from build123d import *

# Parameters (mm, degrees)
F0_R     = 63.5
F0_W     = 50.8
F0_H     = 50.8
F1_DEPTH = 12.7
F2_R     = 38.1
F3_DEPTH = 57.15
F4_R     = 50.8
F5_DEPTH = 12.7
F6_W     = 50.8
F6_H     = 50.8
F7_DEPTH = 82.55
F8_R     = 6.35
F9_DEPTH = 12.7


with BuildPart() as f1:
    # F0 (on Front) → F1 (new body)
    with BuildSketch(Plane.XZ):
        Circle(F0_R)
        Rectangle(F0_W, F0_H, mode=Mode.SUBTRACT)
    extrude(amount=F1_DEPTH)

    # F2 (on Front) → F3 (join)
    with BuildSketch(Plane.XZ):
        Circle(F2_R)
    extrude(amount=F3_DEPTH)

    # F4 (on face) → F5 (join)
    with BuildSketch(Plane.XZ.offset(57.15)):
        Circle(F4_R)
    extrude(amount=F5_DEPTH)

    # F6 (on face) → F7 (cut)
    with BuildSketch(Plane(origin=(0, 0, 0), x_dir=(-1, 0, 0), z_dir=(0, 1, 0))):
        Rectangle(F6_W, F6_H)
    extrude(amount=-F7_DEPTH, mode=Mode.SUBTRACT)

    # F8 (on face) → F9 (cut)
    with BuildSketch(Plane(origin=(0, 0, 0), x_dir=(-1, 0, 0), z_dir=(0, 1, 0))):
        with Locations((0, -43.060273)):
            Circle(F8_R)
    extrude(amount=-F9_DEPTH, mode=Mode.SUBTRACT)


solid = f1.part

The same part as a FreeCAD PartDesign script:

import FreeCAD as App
import Part
import Sketcher

V = App.Vector
Q = App.Units.Quantity


def add_polygon(sketch, points):
    """Adds a closed chain of lines whose ends are joined by coincident constraints."""
    first, n = sketch.GeometryCount, len(points)
    for a, b in zip(points, points[1:] + points[:1]):
        sketch.addGeometry(Part.LineSegment(App.Vector(*a, 0), App.Vector(*b, 0)), False)
    for i in range(n):
        sketch.addConstraint(Sketcher.Constraint("Coincident", first + i, 2, first + (i + 1) % n, 1))

doc = App.newDocument("Part")
body = doc.addObject("PartDesign::Body", "Body")

# Sketch on XZ plane
sketch1 = body.newObject("Sketcher::SketchObject", "Sketch")
sketch1.AttachmentSupport = (doc.getObject("XZ_Plane"), [""])
sketch1.MapMode = "FlatFace"
sketch1.addGeometry(Part.Circle(V(0, 0, 0), V(0, 0, 1), 63.5), False)  # 0
add_polygon(sketch1, [(25.4, -25.4), (-25.4, -25.4), (-25.4, 25.4), (25.4, 25.4)])  # lines 1-4
sketch1.addConstraint([
    Sketcher.Constraint("Horizontal", 1),
    Sketcher.Constraint("Vertical", 2),
    Sketcher.Constraint("Horizontal", 3),
    Sketcher.Constraint("Vertical", 4),
    Sketcher.Constraint("Coincident", 0, 3, -1, 1),
    Sketcher.Constraint("Symmetric", 1, 2, 3, 2, -1, 1),
    Sketcher.Constraint("Equal", 3, 2),
    Sketcher.Constraint("Diameter", 0, Q("5 in")),
    Sketcher.Constraint("DistanceX", 1, 2, 1, 1, Q("2 in")),
])
pad1 = body.newObject("PartDesign::Pad", "Pad")
pad1.Profile = sketch1
pad1.Length = Q("0.5 in")

# Sketch on XZ plane
sketch2 = body.newObject("Sketcher::SketchObject", "Sketch001")
sketch2.AttachmentSupport = (doc.getObject("XZ_Plane"), [""])
sketch2.MapMode = "FlatFace"
sketch2.addGeometry(Part.Circle(V(0, 0, 0), V(0, 0, 1), 38.1), False)
sketch2.addConstraint([
    Sketcher.Constraint("Coincident", 0, 3, -1, 1),
    Sketcher.Constraint("Diameter", 0, Q("3 in")),
])
pad2 = body.newObject("PartDesign::Pad", "Pad001")
pad2.Profile = sketch2
pad2.Length = Q("2.25 in")

# Sketch on XZ plane
sketch3 = body.newObject("Sketcher::SketchObject", "Sketch002")
sketch3.AttachmentSupport = (doc.getObject("XZ_Plane"), [""])
sketch3.MapMode = "FlatFace"
sketch3.AttachmentOffset = App.Placement(V(0, 0, 2.25 * 25.4), App.Rotation())
sketch3.addGeometry(Part.Circle(V(0, 0, 0), V(0, 0, 1), 50.8), False)
sketch3.addConstraint([
    Sketcher.Constraint("Coincident", 0, 3, -1, 1),
    Sketcher.Constraint("Diameter", 0, Q("4 in")),
])
pad3 = body.newObject("PartDesign::Pad", "Pad002")
pad3.Profile = sketch3
pad3.Length = Q("0.5 in")

# Sketch on XZ plane
sketch4 = body.newObject("Sketcher::SketchObject", "Sketch003")
sketch4.AttachmentSupport = (doc.getObject("XZ_Plane"), [""])
sketch4.MapMode = "FlatFace"
add_polygon(sketch4, [(25.4, 25.4), (25.4, -25.4), (-25.4, -25.4), (-25.4, 25.4)])  # lines 0-3
sketch4.addConstraint([
    Sketcher.Constraint("Vertical", 0),
    Sketcher.Constraint("Horizontal", 1),
    Sketcher.Constraint("Vertical", 2),
    Sketcher.Constraint("Horizontal", 3),
    Sketcher.Constraint("Symmetric", 0, 2, 2, 2, -1, 1),
    Sketcher.Constraint("Equal", 3, 0),
    Sketcher.Constraint("DistanceX", 1, 2, 1, 1, Q("2 in")),
])
pocket1 = body.newObject("PartDesign::Pocket", "Pocket")
pocket1.Profile = sketch4
pocket1.Length = Q("3.25 in")
pocket1.Reversed = True

# Sketch on XZ plane
sketch5 = body.newObject("Sketcher::SketchObject", "Sketch004")
sketch5.AttachmentSupport = (doc.getObject("XZ_Plane"), [""])
sketch5.MapMode = "FlatFace"
sketch5.addGeometry(Part.Circle(V(0, -43.060273, 0), V(0, 0, 1), 6.35), False)
sketch5.addConstraint([
    Sketcher.Constraint("PointOnObject", 0, 3, -2),
    Sketcher.Constraint("Diameter", 0, Q("0.5 in")),
    Sketcher.Constraint("DistanceY", 0, 3, -1, 1, 43.060273),
])
pocket2 = body.newObject("PartDesign::Pocket", "Pocket001")
pocket2.Profile = sketch5
pocket2.Length = Q("0.5 in")
pocket2.Reversed = True

doc.recompute()
